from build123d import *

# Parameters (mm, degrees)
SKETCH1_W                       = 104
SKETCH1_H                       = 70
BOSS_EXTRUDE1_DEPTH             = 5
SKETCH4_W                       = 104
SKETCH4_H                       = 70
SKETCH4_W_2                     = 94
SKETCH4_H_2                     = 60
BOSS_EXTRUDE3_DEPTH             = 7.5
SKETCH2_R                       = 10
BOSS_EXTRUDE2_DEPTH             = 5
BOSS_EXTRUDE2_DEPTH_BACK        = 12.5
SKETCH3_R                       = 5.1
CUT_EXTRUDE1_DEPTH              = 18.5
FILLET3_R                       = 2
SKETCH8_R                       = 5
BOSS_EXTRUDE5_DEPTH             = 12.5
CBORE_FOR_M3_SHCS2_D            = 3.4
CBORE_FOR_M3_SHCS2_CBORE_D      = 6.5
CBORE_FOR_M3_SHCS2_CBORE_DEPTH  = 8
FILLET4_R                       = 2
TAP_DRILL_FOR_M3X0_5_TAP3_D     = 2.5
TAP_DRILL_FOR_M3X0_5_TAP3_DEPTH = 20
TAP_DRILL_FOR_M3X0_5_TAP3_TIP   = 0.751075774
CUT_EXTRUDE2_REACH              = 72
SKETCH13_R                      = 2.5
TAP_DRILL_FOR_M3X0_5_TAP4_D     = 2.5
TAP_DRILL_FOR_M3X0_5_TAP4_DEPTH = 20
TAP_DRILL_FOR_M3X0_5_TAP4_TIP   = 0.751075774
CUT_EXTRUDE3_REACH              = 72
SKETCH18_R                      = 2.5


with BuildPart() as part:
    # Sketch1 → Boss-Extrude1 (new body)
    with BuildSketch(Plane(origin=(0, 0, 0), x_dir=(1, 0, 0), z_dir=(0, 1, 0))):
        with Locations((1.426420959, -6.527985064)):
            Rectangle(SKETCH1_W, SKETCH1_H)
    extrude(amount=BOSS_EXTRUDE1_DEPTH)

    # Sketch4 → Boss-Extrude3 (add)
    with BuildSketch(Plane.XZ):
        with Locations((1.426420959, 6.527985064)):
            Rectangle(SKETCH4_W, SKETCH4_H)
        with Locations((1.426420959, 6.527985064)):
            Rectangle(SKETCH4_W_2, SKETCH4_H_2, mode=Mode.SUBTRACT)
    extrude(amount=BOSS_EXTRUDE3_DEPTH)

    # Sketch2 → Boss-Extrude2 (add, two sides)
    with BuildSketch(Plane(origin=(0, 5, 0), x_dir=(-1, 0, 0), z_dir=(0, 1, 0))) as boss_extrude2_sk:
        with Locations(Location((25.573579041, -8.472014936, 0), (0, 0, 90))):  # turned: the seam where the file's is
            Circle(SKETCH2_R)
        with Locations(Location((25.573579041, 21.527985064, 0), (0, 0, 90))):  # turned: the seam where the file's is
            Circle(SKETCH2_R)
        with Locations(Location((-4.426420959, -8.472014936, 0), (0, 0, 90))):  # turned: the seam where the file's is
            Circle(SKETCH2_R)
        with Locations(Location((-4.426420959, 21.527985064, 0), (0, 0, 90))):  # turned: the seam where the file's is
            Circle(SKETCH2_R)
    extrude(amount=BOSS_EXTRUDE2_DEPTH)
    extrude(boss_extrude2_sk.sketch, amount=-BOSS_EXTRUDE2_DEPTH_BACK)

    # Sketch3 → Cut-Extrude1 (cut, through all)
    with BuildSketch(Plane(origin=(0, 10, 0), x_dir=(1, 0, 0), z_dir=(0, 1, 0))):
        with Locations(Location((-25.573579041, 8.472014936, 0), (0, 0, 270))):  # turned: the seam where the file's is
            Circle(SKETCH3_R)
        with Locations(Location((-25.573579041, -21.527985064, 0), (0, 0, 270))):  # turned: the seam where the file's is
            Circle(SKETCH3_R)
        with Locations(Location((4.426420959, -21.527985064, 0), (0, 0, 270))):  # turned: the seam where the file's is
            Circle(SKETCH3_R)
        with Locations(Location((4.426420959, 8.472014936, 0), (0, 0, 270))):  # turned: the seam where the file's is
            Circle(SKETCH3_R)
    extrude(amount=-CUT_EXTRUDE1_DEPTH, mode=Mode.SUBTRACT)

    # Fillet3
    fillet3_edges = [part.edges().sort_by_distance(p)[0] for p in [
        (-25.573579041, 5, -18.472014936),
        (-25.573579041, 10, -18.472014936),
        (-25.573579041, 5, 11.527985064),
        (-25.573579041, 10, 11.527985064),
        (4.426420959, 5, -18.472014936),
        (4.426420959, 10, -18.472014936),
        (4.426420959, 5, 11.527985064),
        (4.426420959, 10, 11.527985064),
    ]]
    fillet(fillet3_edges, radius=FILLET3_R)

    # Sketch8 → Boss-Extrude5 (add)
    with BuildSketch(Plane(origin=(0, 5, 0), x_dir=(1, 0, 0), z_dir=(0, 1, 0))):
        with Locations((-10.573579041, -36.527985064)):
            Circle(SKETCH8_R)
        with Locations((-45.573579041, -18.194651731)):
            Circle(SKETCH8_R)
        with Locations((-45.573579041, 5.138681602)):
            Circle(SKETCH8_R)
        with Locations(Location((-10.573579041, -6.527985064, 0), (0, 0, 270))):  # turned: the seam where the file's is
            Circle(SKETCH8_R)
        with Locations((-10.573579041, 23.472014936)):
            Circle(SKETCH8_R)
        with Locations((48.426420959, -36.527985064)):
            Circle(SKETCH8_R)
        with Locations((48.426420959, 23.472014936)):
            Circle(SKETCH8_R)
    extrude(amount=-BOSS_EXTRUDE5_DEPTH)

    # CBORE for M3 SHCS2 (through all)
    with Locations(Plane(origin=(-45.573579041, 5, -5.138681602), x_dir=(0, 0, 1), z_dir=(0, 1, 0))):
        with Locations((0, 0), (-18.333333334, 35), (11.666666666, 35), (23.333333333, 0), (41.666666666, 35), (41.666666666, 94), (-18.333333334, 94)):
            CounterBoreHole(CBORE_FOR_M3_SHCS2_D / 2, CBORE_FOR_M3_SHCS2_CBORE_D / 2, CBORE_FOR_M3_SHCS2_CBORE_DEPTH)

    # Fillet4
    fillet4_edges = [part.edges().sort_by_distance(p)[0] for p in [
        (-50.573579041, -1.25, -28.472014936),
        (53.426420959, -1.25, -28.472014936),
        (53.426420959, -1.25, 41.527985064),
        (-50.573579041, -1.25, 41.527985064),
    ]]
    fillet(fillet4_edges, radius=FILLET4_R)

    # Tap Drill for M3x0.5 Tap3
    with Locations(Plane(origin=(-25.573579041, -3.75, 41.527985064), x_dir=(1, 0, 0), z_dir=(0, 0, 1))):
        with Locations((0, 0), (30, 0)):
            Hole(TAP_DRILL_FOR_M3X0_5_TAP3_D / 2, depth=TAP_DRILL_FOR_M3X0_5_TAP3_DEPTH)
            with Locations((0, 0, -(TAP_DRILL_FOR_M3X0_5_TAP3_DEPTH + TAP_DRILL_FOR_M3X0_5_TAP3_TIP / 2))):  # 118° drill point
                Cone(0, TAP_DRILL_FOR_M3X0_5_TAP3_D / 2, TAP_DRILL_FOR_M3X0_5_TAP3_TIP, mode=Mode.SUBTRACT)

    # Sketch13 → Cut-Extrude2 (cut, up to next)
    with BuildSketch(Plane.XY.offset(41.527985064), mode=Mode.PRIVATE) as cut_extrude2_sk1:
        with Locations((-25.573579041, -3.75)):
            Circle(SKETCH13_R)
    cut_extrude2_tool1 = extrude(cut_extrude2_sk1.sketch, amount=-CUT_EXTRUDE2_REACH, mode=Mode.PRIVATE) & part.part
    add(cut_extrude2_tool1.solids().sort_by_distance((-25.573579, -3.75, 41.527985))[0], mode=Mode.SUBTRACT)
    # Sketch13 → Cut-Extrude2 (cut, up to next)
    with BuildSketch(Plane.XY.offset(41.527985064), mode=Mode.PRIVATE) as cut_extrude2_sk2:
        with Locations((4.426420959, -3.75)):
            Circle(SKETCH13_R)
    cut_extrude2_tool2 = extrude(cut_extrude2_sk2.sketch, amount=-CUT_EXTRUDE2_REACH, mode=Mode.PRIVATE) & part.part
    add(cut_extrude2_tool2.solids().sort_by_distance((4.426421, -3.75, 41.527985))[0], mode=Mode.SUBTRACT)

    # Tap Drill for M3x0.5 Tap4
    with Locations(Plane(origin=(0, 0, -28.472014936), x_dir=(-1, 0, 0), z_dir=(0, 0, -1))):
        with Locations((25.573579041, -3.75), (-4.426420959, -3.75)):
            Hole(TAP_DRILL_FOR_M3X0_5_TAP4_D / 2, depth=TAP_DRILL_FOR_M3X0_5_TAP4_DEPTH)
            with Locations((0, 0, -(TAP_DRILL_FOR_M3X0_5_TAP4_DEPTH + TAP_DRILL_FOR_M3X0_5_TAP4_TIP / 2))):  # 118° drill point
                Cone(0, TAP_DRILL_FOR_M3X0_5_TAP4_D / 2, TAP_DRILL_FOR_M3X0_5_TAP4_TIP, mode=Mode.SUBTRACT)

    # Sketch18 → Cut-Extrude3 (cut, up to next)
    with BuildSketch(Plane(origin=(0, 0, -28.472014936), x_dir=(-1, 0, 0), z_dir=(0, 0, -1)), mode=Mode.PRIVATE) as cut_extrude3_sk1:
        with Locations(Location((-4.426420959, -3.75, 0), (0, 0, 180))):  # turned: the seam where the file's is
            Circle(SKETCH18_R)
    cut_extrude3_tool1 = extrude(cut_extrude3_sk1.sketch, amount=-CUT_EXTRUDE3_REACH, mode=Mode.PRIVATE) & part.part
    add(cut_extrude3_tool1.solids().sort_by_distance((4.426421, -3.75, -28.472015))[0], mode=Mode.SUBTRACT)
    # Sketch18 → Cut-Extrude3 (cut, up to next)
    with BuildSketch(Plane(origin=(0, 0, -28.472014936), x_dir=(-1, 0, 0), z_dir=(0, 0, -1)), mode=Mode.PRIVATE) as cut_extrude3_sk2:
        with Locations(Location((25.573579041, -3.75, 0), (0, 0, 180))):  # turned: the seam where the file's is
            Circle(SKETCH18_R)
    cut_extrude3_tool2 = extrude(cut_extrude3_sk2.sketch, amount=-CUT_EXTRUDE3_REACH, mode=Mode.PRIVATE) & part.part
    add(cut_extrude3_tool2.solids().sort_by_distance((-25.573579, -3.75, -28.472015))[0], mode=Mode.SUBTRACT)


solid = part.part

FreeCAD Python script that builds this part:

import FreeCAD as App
import Part
import Sketcher
from FreeCAD import Vector


def edges_at(feature, points):
    """Names of the edges that pass closest to the given points."""
    edges = feature.Shape.Edges
    near = lambda p: min(range(len(edges)), key=lambda i: edges[i].distToShape(Part.Vertex(*p))[0])
    return sorted({f"Edge{near(p) + 1}" for p in points})


def add_polygon(sketch, points):
    """Adds a closed chain of lines whose ends are joined by coincident constraints."""
    first, n = sketch.GeometryCount, len(points)
    for a, b in zip(points, points[1:] + points[:1]):
        sketch.addGeometry(Part.LineSegment(App.Vector(*a, 0), App.Vector(*b, 0)), False)
    for i in range(n):
        sketch.addConstraint(Sketcher.Constraint("Coincident", first + i, 2, first + (i + 1) % n, 1))

doc = App.newDocument("Part")
body = doc.addObject("PartDesign::Body", "Body")

sketch1 = body.newObject("Sketcher::SketchObject", "Sketch")
sketch1.AttachmentSupport = (doc.getObject("XZ_Plane"), [""])
sketch1.MapMode = "FlatFace"
add_polygon(sketch1, [(-51, -28), (-51, 42), (53, 42), (53, -28)])
sketch1.addConstraint([
    Sketcher.Constraint("Vertical", 0),
    Sketcher.Constraint("Horizontal", 1),
    Sketcher.Constraint("Vertical", 2),
    Sketcher.Constraint("Horizontal", 3),
    Sketcher.Constraint("DistanceX", 1, 1, 1, 2, 104.0),
    Sketcher.Constraint("DistanceY", 0, 1, 0, 2, 70.0),
    Sketcher.Constraint("DistanceX", 0, 2, -1, 1, 50.573579),
    Sketcher.Constraint("DistanceY", -1, 1, 0, 2, 41.527985),
])
pad1 = body.newObject("PartDesign::Pad", "Pad")
pad1.Profile = sketch1
pad1.Length = 5
pad1.Reversed = True

sketch2 = body.newObject("Sketcher::SketchObject", "Sketch001")
sketch2.AttachmentSupport = (doc.getObject("XZ_Plane"), [""])
sketch2.MapMode = "FlatFace"
add_polygon(sketch2, [(-51, 42), (-51, -28), (53, -28), (53, 42)])
add_polygon(sketch2, [(48, -23), (-46, -23), (-46, 37), (48, 37)])
sketch2.addConstraint([
    Sketcher.Constraint("Vertical", 0),
    Sketcher.Constraint("Horizontal", 1),
    Sketcher.Constraint("Vertical", 2),
    Sketcher.Constraint("Horizontal", 3),
    Sketcher.Constraint("Horizontal", 4),
    Sketcher.Constraint("Vertical", 5),
    Sketcher.Constraint("Horizontal", 6),
    Sketcher.Constraint("Vertical", 7),
    Sketcher.Constraint("DistanceX", 1, 1, 1, 2, 104.0),
    Sketcher.Constraint("DistanceX", 4, 2, 4, 1, 94.0),
    Sketcher.Constraint("DistanceY", 0, 2, 0, 1, 70.0),
    Sketcher.Constraint("DistanceY", 5, 1, 5, 2, 60.0),
    Sketcher.Constraint("DistanceX", 0, 2, 4, 2, 5.0),
    Sketcher.Constraint("DistanceY", 0, 2, 4, 2, 5.0),
    Sketcher.Constraint("DistanceX", 0, 2, -1, 1, 50.573579),
    Sketcher.Constraint("DistanceY", 0, 2, -1, 1, 28.472015),
])
pad2 = body.newObject("PartDesign::Pad", "Pad001")
pad2.Profile = sketch2
pad2.Length = 7.5

sketch3 = body.newObject("Sketcher::SketchObject", "Sketch002")
sketch3.AttachmentSupport = (doc.getObject("XZ_Plane"), [""])
sketch3.MapMode = "FlatFace"
sketch3.AttachmentOffset = App.Placement(Vector(0, 0, -5), App.Rotation())
sketch3.addGeometry([
    Part.Circle(Vector(-26, -8, 0), Vector(0, 0, 1), 10),
    Part.Circle(Vector(-26, 22, 0), Vector(0, 0, 1), 10),
    Part.Circle(Vector(4, -8, 0), Vector(0, 0, 1), 10),
    Part.Circle(Vector(4, 22, 0), Vector(0, 0, 1), 10),
], False)
sketch3.addConstraint([
    Sketcher.Constraint("Equal", 0, 1),
    Sketcher.Constraint("Equal", 1, 2),
    Sketcher.Constraint("Equal", 2, 3),
    Sketcher.Constraint("Horizontal", 0, 3, 2, 3),
    Sketcher.Constraint("Horizontal", 1, 3, 3, 3),
    Sketcher.Constraint("Vertical", 0, 3, 1, 3),
    Sketcher.Constraint("Vertical", 2, 3, 3, 3),
    Sketcher.Constraint("Diameter", 0, 20.0),
    Sketcher.Constraint("DistanceY", 0, 3, 1, 3, 30.0),
    Sketcher.Constraint("DistanceX", 0, 3, 2, 3, 30.0),
    Sketcher.Constraint("DistanceX", 0, 3, -1, 1, 25.573579),
    Sketcher.Constraint("DistanceY", 0, 3, -1, 1, 8.472015),
])
pad3 = body.newObject("PartDesign::Pad", "Pad002")
pad3.Profile = sketch3
pad3.Type = "TwoLengths"
pad3.Length = 5
pad3.Length2 = 12.5
pad3.Reversed = True

sketch4 = body.newObject("Sketcher::SketchObject", "Sketch003")
sketch4.AttachmentSupport = (doc.getObject("XZ_Plane"), [""])
sketch4.MapMode = "FlatFace"
sketch4.AttachmentOffset = App.Placement(Vector(0, 0, -10), App.Rotation())
sketch4.addGeometry([
    Part.Circle(Vector(-26, -8, 0), Vector(0, 0, 1), 5),
    Part.Circle(Vector(-26, 22, 0), Vector(0, 0, 1), 5),
    Part.Circle(Vector(4, 22, 0), Vector(0, 0, 1), 5),
    Part.Circle(Vector(4, -8, 0), Vector(0, 0, 1), 5),
], False)
sketch4.addConstraint([
    Sketcher.Constraint("Equal", 0, 1),
    Sketcher.Constraint("Equal", 1, 2),
    Sketcher.Constraint("Equal", 2, 3),
    Sketcher.Constraint("Horizontal", 1, 3, 2, 3),
    Sketcher.Constraint("Horizontal", 0, 3, 3, 3),
    Sketcher.Constraint("Vertical", 0, 3, 1, 3),
    Sketcher.Constraint("Vertical", 2, 3, 3, 3),
    Sketcher.Constraint("Diameter", 0, 10.2),
    Sketcher.Constraint("DistanceY", 0, 3, 1, 3, 30.0),
    Sketcher.Constraint("DistanceX", 1, 3, 2, 3, 30.0),
    Sketcher.Constraint("DistanceX", 0, 3, -1, 1, 25.573579),
    Sketcher.Constraint("DistanceY", 0, 3, -1, 1, 8.472015),
])
pocket1 = body.newObject("PartDesign::Pocket", "Pocket")
pocket1.Profile = sketch4
pocket1.Type = "ThroughAll"
pocket1.Reversed = True
doc.recompute()

fillet = body.newObject("PartDesign::Fillet", "Fillet")
fillet.Base = (pocket1, edges_at(pocket1, [
    (-25.574, 5, -18.472),
    (-25.574, 10, -18.472),
    (-25.574, 5, 11.528),
    (-25.574, 10, 11.528),
    (4.426, 5, -18.472),
    (4.426, 10, -18.472),
    (4.426, 5, 11.528),
    (4.426, 10, 11.528),
]))
fillet.Radius = 2

sketch5 = body.newObject("Sketcher::SketchObject", "Sketch004")
sketch5.AttachmentSupport = (doc.getObject("XZ_Plane"), [""])
sketch5.MapMode = "FlatFace"
sketch5.AttachmentOffset = App.Placement(Vector(0, 0, -5), App.Rotation())
sketch5.addGeometry([
    Part.Circle(Vector(-11, 37, 0), Vector(0, 0, 1), 5),
    Part.Circle(Vector(-46, 18, 0), Vector(0, 0, 1), 5),
    Part.Circle(Vector(-46, -5, 0), Vector(0, 0, 1), 5),
    Part.Circle(Vector(-11, 7, 0), Vector(0, 0, 1), 5),
    Part.Circle(Vector(-11, -23, 0), Vector(0, 0, 1), 5),
    Part.Circle(Vector(48, 37, 0), Vector(0, 0, 1), 5),
    Part.Circle(Vector(48, -23, 0), Vector(0, 0, 1), 5),
], False)
sketch5.addConstraint([
    Sketcher.Constraint("Equal", 0, 1),
    Sketcher.Constraint("Equal", 1, 2),
    Sketcher.Constraint("Equal", 2, 3),
    Sketcher.Constraint("Equal", 3, 4),
    Sketcher.Constraint("Equal", 4, 5),
    Sketcher.Constraint("Equal", 5, 6),
    Sketcher.Constraint("Horizontal", 0, 3, 5, 3),
    Sketcher.Constraint("Horizontal", 4, 3, 6, 3),
    Sketcher.Constraint("Vertical", 1, 3, 2, 3),
    Sketcher.Constraint("Vertical", 0, 3, 3, 3),
    Sketcher.Constraint("Vertical", 3, 3, 4, 3),
    Sketcher.Constraint("Vertical", 5, 3, 6, 3),
    Sketcher.Constraint("Diameter", 0, 10.0),
    Sketcher.Constraint("DistanceX", 1, 3, 0, 3, 35.0),
    Sketcher.Constraint("DistanceY", 3, 3, 0, 3, 30.0),
    Sketcher.Constraint("DistanceY", 4, 3, 3, 3, 30.0),
    Sketcher.Constraint("DistanceX", 0, 3, 5, 3, 59.0),
    Sketcher.Constraint("DistanceX", 0, 3, -1, 1, 10.573579),
    Sketcher.Constraint("DistanceY", -1, 1, 1, 3, 18.194652),
    Sketcher.Constraint("DistanceY", 2, 3, -1, 1, 5.138682),
    Sketcher.Constraint("DistanceY", -1, 1, 0, 3, 36.527985),
])
pad4 = body.newObject("PartDesign::Pad", "Pad003")
pad4.Profile = sketch5
pad4.Length = 12.5

sketch6 = body.newObject("Sketcher::SketchObject", "Sketch005")
sketch6.AttachmentSupport = (doc.getObject("XZ_Plane"), [""])
sketch6.MapMode = "FlatFace"
sketch6.AttachmentOffset = App.Placement(Vector(0, 0, -5), App.Rotation())
sketch6.addGeometry([
    Part.Circle(Vector(-45.6, -5.1, 0), Vector(0, 0, 1), 1.7),
    Part.Circle(Vector(-10.6, -23.5, 0), Vector(0, 0, 1), 1.7),
    Part.Circle(Vector(-10.6, 6.5, 0), Vector(0, 0, 1), 1.7),
    Part.Circle(Vector(-45.6, 18.2, 0), Vector(0, 0, 1), 1.7),
    Part.Circle(Vector(-10.6, 36.5, 0), Vector(0, 0, 1), 1.7),
    Part.Circle(Vector(48.4, 36.5, 0), Vector(0, 0, 1), 1.7),
    Part.Circle(Vector(48.4, -23.5, 0), Vector(0, 0, 1), 1.7),
], False)
sketch6.addConstraint([
    Sketcher.Constraint("Equal", 0, 1),
    Sketcher.Constraint("Equal", 1, 2),
    Sketcher.Constraint("Equal", 2, 3),
    Sketcher.Constraint("Equal", 3, 4),
    Sketcher.Constraint("Equal", 4, 5),
    Sketcher.Constraint("Equal", 5, 6),
    Sketcher.Constraint("Horizontal", 4, 3, 5, 3),
    Sketcher.Constraint("Horizontal", 1, 3, 6, 3),
    Sketcher.Constraint("Vertical", 1, 3, 2, 3),
    Sketcher.Constraint("Vertical", 0, 3, 3, 3),
    Sketcher.Constraint("Vertical", 2, 3, 4, 3),
    Sketcher.Constraint("Vertical", 5, 3, 6, 3),
    Sketcher.Constraint("Diameter", 0, 3.4),
    Sketcher.Constraint("DistanceX", 0, 3, 1, 3, 35.0),
    Sketcher.Constraint("DistanceY", 1, 3, 2, 3, 30.0),
    Sketcher.Constraint("DistanceY", 2, 3, 4, 3, 30.0),
    Sketcher.Constraint("DistanceX", 4, 3, 5, 3, 59.0),
    Sketcher.Constraint("DistanceX", 0, 3, -1, 1, 45.573579),
    Sketcher.Constraint("DistanceY", 0, 3, -1, 1, 5.138682),
    Sketcher.Constraint("DistanceY", -1, 1, 3, 3, 18.194652),
    Sketcher.Constraint("DistanceY", 1, 3, -1, 1, 23.472015),
])
doc.recompute()
hole = body.newObject("PartDesign::Hole", "Hole")
hole.Profile = sketch6
hole.ThreadType = "None"
hole.Diameter = 3.4
hole.DepthType = "ThroughAll"
hole.HoleCutType = "Counterbore"
hole.HoleCutDiameter = 6.5
hole.HoleCutDepth = 8
hole.Reversed = True
doc.recompute()

fillet2 = body.newObject("PartDesign::Fillet", "Fillet001")
fillet2.Base = (hole, edges_at(hole, [
    (-50.574, -1.25, -28.472),
    (53.426, -1.25, -28.472),
    (53.426, -1.25, 41.528),
    (-50.574, -1.25, 41.528),
]))
fillet2.Radius = 2

sketch7 = body.newObject("Sketcher::SketchObject", "Sketch006")
sketch7.AttachmentSupport = (doc.getObject("XY_Plane"), [""])
sketch7.MapMode = "FlatFace"
sketch7.AttachmentOffset = App.Placement(Vector(0, 0, 41.527985), App.Rotation())
sketch7.addGeometry([
    Part.Circle(Vector(-25.6, -3.8, 0), Vector(0, 0, 1), 1.2),
    Part.Circle(Vector(4.4, -3.8, 0), Vector(0, 0, 1), 1.2),
], False)
sketch7.addConstraint([
    Sketcher.Constraint("Equal", 0, 1),
    Sketcher.Constraint("Horizontal", 0, 3, 1, 3),
    Sketcher.Constraint("Diameter", 0, 2.5),
    Sketcher.Constraint("DistanceX", 0, 3, 1, 3, 30.0),
    Sketcher.Constraint("DistanceY", 0, 3, -1, 1, 3.75),
    Sketcher.Constraint("DistanceX", 0, 3, -1, 1, 25.573579),
])
doc.recompute()
hole2 = body.newObject("PartDesign::Hole", "Hole001")
hole2.Profile = sketch7
hole2.ThreadType = "None"
hole2.Diameter = 2.5
hole2.DepthType = "Dimension"
hole2.Depth = 20
hole2.DrillPoint = "Angled"
hole2.DrillPointAngle = 118

sketch8 = body.newObject("Sketcher::SketchObject", "Sketch007")
sketch8.AttachmentSupport = (doc.getObject("XY_Plane"), [""])
sketch8.MapMode = "FlatFace"
sketch8.AttachmentOffset = App.Placement(Vector(0, 0, 41.527985), App.Rotation())
sketch8.addGeometry(Part.Circle(Vector(-25.6, -3.8, 0), Vector(0, 0, 1), 2.5), False)
sketch8.addConstraint([
    Sketcher.Constraint("Diameter", 0, 5.0),
    Sketcher.Constraint("DistanceY", 0, 3, -1, 1, 3.75),
    Sketcher.Constraint("DistanceX", 0, 3, -1, 1, 25.573579),
])
pocket2 = body.newObject("PartDesign::Pocket", "Pocket001")
pocket2.Profile = sketch8
pocket2.Length = 5

sketch9 = body.newObject("Sketcher::SketchObject", "Sketch008")
sketch9.AttachmentSupport = (doc.getObject("XY_Plane"), [""])
sketch9.MapMode = "FlatFace"
sketch9.AttachmentOffset = App.Placement(Vector(0, 0, 41.527985), App.Rotation())
sketch9.addGeometry(Part.Circle(Vector(4.4, -3.8, 0), Vector(0, 0, 1), 2.5), False)
sketch9.addConstraint([
    Sketcher.Constraint("Diameter", 0, 5.0),
    Sketcher.Constraint("DistanceY", 0, 3, -1, 1, 3.75),
    Sketcher.Constraint("DistanceX", -1, 1, 0, 3, 4.426421),
])
pocket3 = body.newObject("PartDesign::Pocket", "Pocket002")
pocket3.Profile = sketch9
pocket3.Length = 5

sketch10 = body.newObject("Sketcher::SketchObject", "Sketch009")
sketch10.AttachmentSupport = (doc.getObject("XY_Plane"), [""])
sketch10.MapMode = "FlatFace"
sketch10.AttachmentOffset = App.Placement(Vector(0, 0, -28.472015), App.Rotation())
sketch10.addGeometry([
    Part.Circle(Vector(-25.6, -3.8, 0), Vector(0, 0, 1), 1.2),
    Part.Circle(Vector(4.4, -3.8, 0), Vector(0, 0, 1), 1.2),
], False)
sketch10.addConstraint([
    Sketcher.Constraint("Equal", 0, 1),
    Sketcher.Constraint("Horizontal", 0, 3, 1, 3),
    Sketcher.Constraint("Diameter", 0, 2.5),
    Sketcher.Constraint("DistanceX", 0, 3, 1, 3, 30.0),
    Sketcher.Constraint("DistanceY", 0, 3, -1, 1, 3.75),
    Sketcher.Constraint("DistanceX", 0, 3, -1, 1, 25.573579),
])
doc.recompute()
hole3 = body.newObject("PartDesign::Hole", "Hole002")
hole3.Profile = sketch10
hole3.ThreadType = "None"
hole3.Diameter = 2.5
hole3.DepthType = "Dimension"
hole3.Depth = 20
hole3.DrillPoint = "Angled"
hole3.DrillPointAngle = 118
hole3.Reversed = True

sketch11 = body.newObject("Sketcher::SketchObject", "Sketch010")
sketch11.AttachmentSupport = (doc.getObject("XY_Plane"), [""])
sketch11.MapMode = "FlatFace"
sketch11.AttachmentOffset = App.Placement(Vector(0, 0, -28.472015), App.Rotation())
sketch11.addGeometry(Part.Circle(Vector(4.4, -3.8, 0), Vector(0, 0, 1), 2.5), False)
sketch11.addConstraint([
    Sketcher.Constraint("Diameter", 0, 5.0),
    Sketcher.Constraint("DistanceY", 0, 3, -1, 1, 3.75),
    Sketcher.Constraint("DistanceX", -1, 1, 0, 3, 4.426421),
])
pocket4 = body.newObject("PartDesign::Pocket", "Pocket003")
pocket4.Profile = sketch11
pocket4.Length = 5
pocket4.Reversed = True

sketch12 = body.newObject("Sketcher::SketchObject", "Sketch011")
sketch12.AttachmentSupport = (doc.getObject("XY_Plane"), [""])
sketch12.MapMode = "FlatFace"
sketch12.AttachmentOffset = App.Placement(Vector(0, 0, -28.472015), App.Rotation())
sketch12.addGeometry(Part.Circle(Vector(-25.6, -3.8, 0), Vector(0, 0, 1), 2.5), False)
sketch12.addConstraint([
    Sketcher.Constraint("Diameter", 0, 5.0),
    Sketcher.Constraint("DistanceY", 0, 3, -1, 1, 3.75),
    Sketcher.Constraint("DistanceX", 0, 3, -1, 1, 25.573579),
])
pocket5 = body.newObject("PartDesign::Pocket", "Pocket004")
pocket5.Profile = sketch12
pocket5.Length = 5
pocket5.Reversed = True

doc.recompute()
